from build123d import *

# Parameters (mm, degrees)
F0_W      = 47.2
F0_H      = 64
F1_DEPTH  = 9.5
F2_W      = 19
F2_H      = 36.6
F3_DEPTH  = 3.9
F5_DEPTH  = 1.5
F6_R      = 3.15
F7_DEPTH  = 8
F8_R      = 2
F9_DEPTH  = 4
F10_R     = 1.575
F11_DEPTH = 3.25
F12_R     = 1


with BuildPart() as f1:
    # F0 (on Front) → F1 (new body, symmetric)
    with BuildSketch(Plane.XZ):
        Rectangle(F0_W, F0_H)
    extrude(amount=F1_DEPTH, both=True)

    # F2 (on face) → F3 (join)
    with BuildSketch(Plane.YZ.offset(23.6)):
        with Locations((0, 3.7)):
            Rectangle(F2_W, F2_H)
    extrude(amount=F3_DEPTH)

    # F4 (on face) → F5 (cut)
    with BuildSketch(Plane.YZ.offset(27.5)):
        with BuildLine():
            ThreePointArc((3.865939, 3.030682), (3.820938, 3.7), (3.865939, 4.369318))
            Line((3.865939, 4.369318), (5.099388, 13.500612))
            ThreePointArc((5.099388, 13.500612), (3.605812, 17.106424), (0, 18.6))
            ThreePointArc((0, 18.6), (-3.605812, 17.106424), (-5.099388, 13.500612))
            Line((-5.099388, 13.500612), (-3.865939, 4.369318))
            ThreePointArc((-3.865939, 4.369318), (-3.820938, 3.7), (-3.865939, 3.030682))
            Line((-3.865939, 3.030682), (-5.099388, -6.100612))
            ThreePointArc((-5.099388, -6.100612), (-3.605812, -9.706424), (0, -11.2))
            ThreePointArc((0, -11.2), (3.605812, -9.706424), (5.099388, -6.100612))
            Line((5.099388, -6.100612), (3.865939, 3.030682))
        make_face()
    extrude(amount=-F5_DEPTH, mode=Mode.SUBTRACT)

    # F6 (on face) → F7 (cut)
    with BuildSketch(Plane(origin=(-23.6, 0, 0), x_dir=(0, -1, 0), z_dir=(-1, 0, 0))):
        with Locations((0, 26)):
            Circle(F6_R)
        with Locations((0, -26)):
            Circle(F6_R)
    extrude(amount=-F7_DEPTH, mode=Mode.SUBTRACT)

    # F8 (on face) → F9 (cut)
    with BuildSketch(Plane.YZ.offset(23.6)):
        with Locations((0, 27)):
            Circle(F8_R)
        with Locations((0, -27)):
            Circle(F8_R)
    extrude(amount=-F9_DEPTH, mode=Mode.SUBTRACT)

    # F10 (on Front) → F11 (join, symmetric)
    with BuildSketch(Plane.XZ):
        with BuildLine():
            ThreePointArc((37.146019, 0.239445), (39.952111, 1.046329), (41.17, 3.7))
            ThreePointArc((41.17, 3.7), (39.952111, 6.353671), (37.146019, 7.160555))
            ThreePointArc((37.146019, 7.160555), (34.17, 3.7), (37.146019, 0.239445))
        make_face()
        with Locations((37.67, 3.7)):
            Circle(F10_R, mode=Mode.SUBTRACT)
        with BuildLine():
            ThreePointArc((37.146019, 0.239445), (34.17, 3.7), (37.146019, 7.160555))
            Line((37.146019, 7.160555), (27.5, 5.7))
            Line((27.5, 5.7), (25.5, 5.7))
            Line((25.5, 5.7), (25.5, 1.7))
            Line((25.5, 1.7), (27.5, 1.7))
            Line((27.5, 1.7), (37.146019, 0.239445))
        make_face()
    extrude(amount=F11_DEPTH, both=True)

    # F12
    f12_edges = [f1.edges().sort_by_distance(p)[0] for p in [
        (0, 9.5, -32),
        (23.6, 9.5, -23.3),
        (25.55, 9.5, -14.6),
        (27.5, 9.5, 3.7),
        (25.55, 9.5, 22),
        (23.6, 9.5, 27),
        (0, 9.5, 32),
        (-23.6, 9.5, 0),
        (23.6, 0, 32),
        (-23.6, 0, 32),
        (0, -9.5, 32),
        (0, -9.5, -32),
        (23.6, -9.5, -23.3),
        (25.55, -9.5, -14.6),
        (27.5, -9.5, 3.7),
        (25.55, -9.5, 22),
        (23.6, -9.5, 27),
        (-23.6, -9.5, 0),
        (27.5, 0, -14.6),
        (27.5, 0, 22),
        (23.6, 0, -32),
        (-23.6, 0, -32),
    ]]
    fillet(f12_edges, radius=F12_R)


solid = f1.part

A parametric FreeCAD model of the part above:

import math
import FreeCAD as App
import Part
import Sketcher
Q = App.Units.Quantity


def edges_at(feature, points):
    """Names of the edges that pass closest to the given points."""
    edges = feature.Shape.Edges
    near = lambda p: min(range(len(edges)), key=lambda i: edges[i].distToShape(Part.Vertex(*p))[0])
    return sorted({f"Edge{near(p) + 1}" for p in points})

doc = App.newDocument("Part")
body = doc.addObject("PartDesign::Body", "Body")

sketch1 = doc.addObject("Sketcher::SketchObject", "Sketch")
body.addObject(sketch1)
sketch1.AttachmentSupport = (doc.XZ_Plane, [""])
sketch1.MapMode = "FlatFace"
sketch1.addGeometry([
    Part.LineSegment(App.Vector(-24, 32, 0), App.Vector(-24, -32, 0)),
    Part.LineSegment(App.Vector(-24, -32, 0), App.Vector(24, -32, 0)),
    Part.LineSegment(App.Vector(24, -32, 0), App.Vector(24, 32, 0)),
    Part.LineSegment(App.Vector(24, 32, 0), App.Vector(-24, 32, 0)),
], False)
sketch1.addConstraint([
    Sketcher.Constraint("Coincident", 0, 2, 1, 1),
    Sketcher.Constraint("Coincident", 1, 2, 2, 1),
    Sketcher.Constraint("Coincident", 2, 2, 3, 1),
    Sketcher.Constraint("Coincident", 3, 2, 0, 1),
    Sketcher.Constraint("Vertical", 0),
    Sketcher.Constraint("Horizontal", 1),
    Sketcher.Constraint("Vertical", 2),
    Sketcher.Constraint("Horizontal", 3),
    Sketcher.Constraint("Symmetric", 0, 2, 2, 2, -1, 1),
    Sketcher.Constraint("DistanceY", 0, 2, 0, 1, Q("64 mm")),
    Sketcher.Constraint("DistanceX", 1, 1, 1, 2, Q("47.2 mm")),
])
pad1 = doc.addObject("PartDesign::Pad", "Pad")
body.addObject(pad1)
pad1.Profile = sketch1
pad1.Length = 19
pad1.Midplane = True

sketch2 = doc.addObject("Sketcher::SketchObject", "Sketch001")
body.addObject(sketch2)
sketch2.AttachmentSupport = (doc.YZ_Plane, [""])
sketch2.MapMode = "FlatFace"
sketch2.AttachmentOffset = App.Placement(App.Vector(0, 0, 23.6), App.Rotation())
sketch2.addGeometry([
    Part.LineSegment(App.Vector(-10, 22, 0), App.Vector(-10, -15, 0)),
    Part.LineSegment(App.Vector(-10, -15, 0), App.Vector(10, -15, 0)),
    Part.LineSegment(App.Vector(10, -15, 0), App.Vector(10, 22, 0)),
    Part.LineSegment(App.Vector(10, 22, 0), App.Vector(-10, 22, 0)),
], False)
sketch2.addConstraint([
    Sketcher.Constraint("Coincident", 0, 2, 1, 1),
    Sketcher.Constraint("Coincident", 1, 2, 2, 1),
    Sketcher.Constraint("Coincident", 2, 2, 3, 1),
    Sketcher.Constraint("Coincident", 3, 2, 0, 1),
    Sketcher.Constraint("Vertical", 0),
    Sketcher.Constraint("Horizontal", 1),
    Sketcher.Constraint("Vertical", 2),
    Sketcher.Constraint("Horizontal", 3),
    Sketcher.Constraint("DistanceX", 1, 1, 1, 2, Q("19 mm")),
    Sketcher.Constraint("DistanceY", 0, 2, 0, 1, Q("36.6 mm")),
    Sketcher.Constraint("DistanceY", -1, 1, 2, 2, Q("22 mm")),
    Sketcher.Constraint("DistanceX", 0, 2, -1, 1, Q("9.5 mm")),
])
pad2 = doc.addObject("PartDesign::Pad", "Pad001")
body.addObject(pad2)
pad2.Profile = sketch2
pad2.Length = 3.9

sketch3 = doc.addObject("Sketcher::SketchObject", "Sketch002")
body.addObject(sketch3)
sketch3.AttachmentSupport = (doc.YZ_Plane, [""])
sketch3.MapMode = "FlatFace"
sketch3.AttachmentOffset = App.Placement(App.Vector(0, 0, 27.5), App.Rotation())
sketch3.addGeometry([
    Part.ArcOfCircle(Part.Circle(App.Vector(8.8, 3.7, 0), App.Vector(0, 0, 1), 5), math.radians(172.31), math.radians(187.69)),
    Part.LineSegment(App.Vector(3.9, 4.4, 0), App.Vector(5.1, 13.5, 0)),
    Part.ArcOfCircle(Part.Circle(App.Vector(0, 13.5, 0), App.Vector(0, 0, 1), 5.1), math.radians(0), math.radians(90)),
    Part.ArcOfCircle(Part.Circle(App.Vector(0, 13.5, 0), App.Vector(0, 0, 1), 5.1), math.radians(90), math.radians(180)),
    Part.LineSegment(App.Vector(-5.1, 13.5, 0), App.Vector(-3.9, 4.4, 0)),
    Part.ArcOfCircle(Part.Circle(App.Vector(-8.8, 3.7, 0), App.Vector(0, 0, 1), 5), math.radians(-7.69), math.radians(7.69)),
    Part.LineSegment(App.Vector(-3.9, 3, 0), App.Vector(-5.1, -6.1, 0)),
    Part.ArcOfCircle(Part.Circle(App.Vector(0, -6.1, 0), App.Vector(0, 0, 1), 5.1), math.radians(180), math.radians(270)),
    Part.ArcOfCircle(Part.Circle(App.Vector(0, -6.1, 0), App.Vector(0, 0, 1), 5.1), math.radians(-90), math.radians(0)),
    Part.LineSegment(App.Vector(5.1, -6.1, 0), App.Vector(3.9, 3, 0)),
], False)
sketch3.addConstraint([
    Sketcher.Constraint("Tangent", 0, 1, 1, 1),
    Sketcher.Constraint("Coincident", 1, 2, 2, 1),
    Sketcher.Constraint("Tangent", 2, 2, 3, 1),
    Sketcher.Constraint("Coincident", 3, 2, 4, 1),
    Sketcher.Constraint("Tangent", 4, 2, 5, 2),
    Sketcher.Constraint("Tangent", 5, 1, 6, 1),
    Sketcher.Constraint("Coincident", 6, 2, 7, 1),
    Sketcher.Constraint("Tangent", 7, 2, 8, 1),
    Sketcher.Constraint("Coincident", 8, 2, 9, 1),
    Sketcher.Constraint("Tangent", 9, 2, 0, 2),
    Sketcher.Constraint("Equal", 2, 3),
    Sketcher.Constraint("Equal", 0, 5),
    Sketcher.Constraint("Equal", 3, 7),
    Sketcher.Constraint("Equal", 7, 8),
    Sketcher.Constraint("Symmetric", 0, 3, 5, 3, -2),
    Sketcher.Constraint("Symmetric", 1, 2, 3, 2, -2),
    Sketcher.Constraint("Symmetric", 6, 2, 8, 2, -2),
    Sketcher.Constraint("PointOnObject", 2, 2, -2),
    Sketcher.Constraint("PointOnObject", 7, 2, -2),
    Sketcher.Constraint("Parallel", 1, 6),
    Sketcher.Constraint("Horizontal", 3, 3, 1, 2),
    Sketcher.Constraint("Horizontal", 8, 3, 6, 2),
    Sketcher.Constraint("DistanceY", -1, 1, 0, 3, Q("3.7 mm")),
    Sketcher.Constraint("DistanceY", -1, 1, 2, 2, Q("18.6 mm")),
    Sketcher.Constraint("Radius", 0, Q("5.000019 mm")),
    Sketcher.Constraint("Radius", 2, Q("5.099387 mm")),
    Sketcher.Constraint("DistanceX", -1, 1, 0, 1, Q("3.865939 mm")),
])
pocket1 = doc.addObject("PartDesign::Pocket", "Pocket")
body.addObject(pocket1)
pocket1.Profile = sketch3
pocket1.Length = 1.5

sketch4 = doc.addObject("Sketcher::SketchObject", "Sketch003")
body.addObject(sketch4)
sketch4.AttachmentSupport = (doc.YZ_Plane, [""])
sketch4.MapMode = "FlatFace"
sketch4.AttachmentOffset = App.Placement(App.Vector(0, 0, -23.6), App.Rotation())
sketch4.addGeometry([
    Part.Circle(App.Vector(0, 26, 0), App.Vector(0, 0, 1), 3.1),
    Part.Circle(App.Vector(0, -26, 0), App.Vector(0, 0, 1), 3.1),
], False)
sketch4.addConstraint([
    Sketcher.Constraint("Equal", 0, 1),
    Sketcher.Constraint("Symmetric", 0, 3, 1, 3, -1, 1),
    Sketcher.Constraint("PointOnObject", 0, 3, -2),
    Sketcher.Constraint("Diameter", 0, Q("6.3 mm")),
    Sketcher.Constraint("DistanceY", -1, 1, 0, 3, Q("26 mm")),
])
pocket2 = doc.addObject("PartDesign::Pocket", "Pocket001")
body.addObject(pocket2)
pocket2.Profile = sketch4
pocket2.Length = 8
pocket2.Reversed = True

sketch5 = doc.addObject("Sketcher::SketchObject", "Sketch004")
body.addObject(sketch5)
sketch5.AttachmentSupport = (doc.YZ_Plane, [""])
sketch5.MapMode = "FlatFace"
sketch5.AttachmentOffset = App.Placement(App.Vector(0, 0, 23.6), App.Rotation())
sketch5.addGeometry([
    Part.Circle(App.Vector(0, 27, 0), App.Vector(0, 0, 1), 2),
    Part.Circle(App.Vector(0, -27, 0), App.Vector(0, 0, 1), 2),
], False)
sketch5.addConstraint([
    Sketcher.Constraint("Equal", 0, 1),
    Sketcher.Constraint("Symmetric", 0, 3, 1, 3, -1, 1),
    Sketcher.Constraint("PointOnObject", 0, 3, -2),
    Sketcher.Constraint("Diameter", 0, Q("4 mm")),
    Sketcher.Constraint("DistanceY", -1, 1, 0, 3, Q("27 mm")),
])
pocket3 = doc.addObject("PartDesign::Pocket", "Pocket002")
body.addObject(pocket3)
pocket3.Profile = sketch5
pocket3.Length = 4

sketch6 = doc.addObject("Sketcher::SketchObject", "Sketch005")
body.addObject(sketch6)
sketch6.AttachmentSupport = (doc.XZ_Plane, [""])
sketch6.MapMode = "FlatFace"
sketch6.addGeometry([
    Part.ArcOfCircle(Part.Circle(App.Vector(37.7, 3.7, 0), App.Vector(0, 0, 1), 3.5), math.radians(-99), math.radians(0)),
    Part.ArcOfCircle(Part.Circle(App.Vector(37.7, 3.7, 0), App.Vector(0, 0, 1), 3.5), math.radians(0), math.radians(99)),
    Part.LineSegment(App.Vector(37.1, 7.2, 0), App.Vector(27.5, 5.7, 0)),
    Part.LineSegment(App.Vector(27.5, 5.7, 0), App.Vector(25.5, 5.7, 0)),
    Part.LineSegment(App.Vector(25.5, 5.7, 0), App.Vector(25.5, 1.7, 0)),
    Part.LineSegment(App.Vector(25.5, 1.7, 0), App.Vector(27.5, 1.7, 0)),
    Part.LineSegment(App.Vector(27.5, 1.7, 0), App.Vector(37.1, 0.2, 0)),
    Part.Circle(App.Vector(37.7, 3.7, 0), App.Vector(0, 0, 1), 1.6),
], False)
sketch6.addConstraint([
    Sketcher.Constraint("Tangent", 0, 2, 1, 1),
    Sketcher.Constraint("Tangent", 1, 2, 2, 1),
    Sketcher.Constraint("Coincident", 2, 2, 3, 1),
    Sketcher.Constraint("Coincident", 3, 2, 4, 1),
    Sketcher.Constraint("Coincident", 4, 2, 5, 1),
    Sketcher.Constraint("Coincident", 5, 2, 6, 1),
    Sketcher.Constraint("Tangent", 6, 2, 0, 1),
    Sketcher.Constraint("Horizontal", 3),
    Sketcher.Constraint("Vertical", 4),
    Sketcher.Constraint("Horizontal", 5),
    Sketcher.Constraint("Coincident", 7, 3, 0, 3),
    Sketcher.Constraint("Equal", 0, 1),
    Sketcher.Constraint("Horizontal", 7, 3, 0, 2),
    Sketcher.Constraint("Vertical", 2, 2, 5, 2),
    Sketcher.Constraint("Vertical", 1, 2, 6, 2),
    Sketcher.Constraint("Radius", 0, Q("3.499999 mm")),
    Sketcher.Constraint("Diameter", 7, Q("3.15 mm")),
    Sketcher.Constraint("DistanceX", 3, 2, 3, 1, Q("2 mm")),
    Sketcher.Constraint("DistanceY", 4, 2, 4, 1, Q("4 mm")),
    Sketcher.Constraint("DistanceY", -1, 1, 0, 3, Q("3.7 mm")),
    Sketcher.Constraint("DistanceX", -1, 1, 2, 2, Q("27.5 mm")),
    Sketcher.Constraint("DistanceX", -1, 1, 0, 3, Q("37.670001 mm")),
])
pad3 = doc.addObject("PartDesign::Pad", "Pad002")
body.addObject(pad3)
pad3.Profile = sketch6
pad3.Length = 6.5
pad3.Midplane = True
doc.recompute()

fillet = doc.addObject("PartDesign::Fillet", "Fillet")
body.addObject(fillet)
fillet.Base = (pad3, edges_at(pad3, [
    (0, 9.5, -32),
    (23.6, 9.5, -23.3),
    (25.55, 9.5, -14.6),
    (27.5, 9.5, 3.7),
    (25.55, 9.5, 22),
    (23.6, 9.5, 27),
    (0, 9.5, 32),
    (-23.6, 9.5, 0),
    (23.6, 0, 32),
    (-23.6, 0, 32),
    (0, -9.5, 32),
    (0, -9.5, -32),
    (23.6, -9.5, -23.3),
    (25.55, -9.5, -14.6),
    (27.5, -9.5, 3.7),
    (25.55, -9.5, 22),
    (23.6, -9.5, 27),
    (-23.6, -9.5, 0),
    (27.5, 0, -14.6),
    (27.5, 0, 22),
    (23.6, 0, -32),
    (-23.6, 0, -32),
]))
fillet.Radius = 1

doc.recompute()
